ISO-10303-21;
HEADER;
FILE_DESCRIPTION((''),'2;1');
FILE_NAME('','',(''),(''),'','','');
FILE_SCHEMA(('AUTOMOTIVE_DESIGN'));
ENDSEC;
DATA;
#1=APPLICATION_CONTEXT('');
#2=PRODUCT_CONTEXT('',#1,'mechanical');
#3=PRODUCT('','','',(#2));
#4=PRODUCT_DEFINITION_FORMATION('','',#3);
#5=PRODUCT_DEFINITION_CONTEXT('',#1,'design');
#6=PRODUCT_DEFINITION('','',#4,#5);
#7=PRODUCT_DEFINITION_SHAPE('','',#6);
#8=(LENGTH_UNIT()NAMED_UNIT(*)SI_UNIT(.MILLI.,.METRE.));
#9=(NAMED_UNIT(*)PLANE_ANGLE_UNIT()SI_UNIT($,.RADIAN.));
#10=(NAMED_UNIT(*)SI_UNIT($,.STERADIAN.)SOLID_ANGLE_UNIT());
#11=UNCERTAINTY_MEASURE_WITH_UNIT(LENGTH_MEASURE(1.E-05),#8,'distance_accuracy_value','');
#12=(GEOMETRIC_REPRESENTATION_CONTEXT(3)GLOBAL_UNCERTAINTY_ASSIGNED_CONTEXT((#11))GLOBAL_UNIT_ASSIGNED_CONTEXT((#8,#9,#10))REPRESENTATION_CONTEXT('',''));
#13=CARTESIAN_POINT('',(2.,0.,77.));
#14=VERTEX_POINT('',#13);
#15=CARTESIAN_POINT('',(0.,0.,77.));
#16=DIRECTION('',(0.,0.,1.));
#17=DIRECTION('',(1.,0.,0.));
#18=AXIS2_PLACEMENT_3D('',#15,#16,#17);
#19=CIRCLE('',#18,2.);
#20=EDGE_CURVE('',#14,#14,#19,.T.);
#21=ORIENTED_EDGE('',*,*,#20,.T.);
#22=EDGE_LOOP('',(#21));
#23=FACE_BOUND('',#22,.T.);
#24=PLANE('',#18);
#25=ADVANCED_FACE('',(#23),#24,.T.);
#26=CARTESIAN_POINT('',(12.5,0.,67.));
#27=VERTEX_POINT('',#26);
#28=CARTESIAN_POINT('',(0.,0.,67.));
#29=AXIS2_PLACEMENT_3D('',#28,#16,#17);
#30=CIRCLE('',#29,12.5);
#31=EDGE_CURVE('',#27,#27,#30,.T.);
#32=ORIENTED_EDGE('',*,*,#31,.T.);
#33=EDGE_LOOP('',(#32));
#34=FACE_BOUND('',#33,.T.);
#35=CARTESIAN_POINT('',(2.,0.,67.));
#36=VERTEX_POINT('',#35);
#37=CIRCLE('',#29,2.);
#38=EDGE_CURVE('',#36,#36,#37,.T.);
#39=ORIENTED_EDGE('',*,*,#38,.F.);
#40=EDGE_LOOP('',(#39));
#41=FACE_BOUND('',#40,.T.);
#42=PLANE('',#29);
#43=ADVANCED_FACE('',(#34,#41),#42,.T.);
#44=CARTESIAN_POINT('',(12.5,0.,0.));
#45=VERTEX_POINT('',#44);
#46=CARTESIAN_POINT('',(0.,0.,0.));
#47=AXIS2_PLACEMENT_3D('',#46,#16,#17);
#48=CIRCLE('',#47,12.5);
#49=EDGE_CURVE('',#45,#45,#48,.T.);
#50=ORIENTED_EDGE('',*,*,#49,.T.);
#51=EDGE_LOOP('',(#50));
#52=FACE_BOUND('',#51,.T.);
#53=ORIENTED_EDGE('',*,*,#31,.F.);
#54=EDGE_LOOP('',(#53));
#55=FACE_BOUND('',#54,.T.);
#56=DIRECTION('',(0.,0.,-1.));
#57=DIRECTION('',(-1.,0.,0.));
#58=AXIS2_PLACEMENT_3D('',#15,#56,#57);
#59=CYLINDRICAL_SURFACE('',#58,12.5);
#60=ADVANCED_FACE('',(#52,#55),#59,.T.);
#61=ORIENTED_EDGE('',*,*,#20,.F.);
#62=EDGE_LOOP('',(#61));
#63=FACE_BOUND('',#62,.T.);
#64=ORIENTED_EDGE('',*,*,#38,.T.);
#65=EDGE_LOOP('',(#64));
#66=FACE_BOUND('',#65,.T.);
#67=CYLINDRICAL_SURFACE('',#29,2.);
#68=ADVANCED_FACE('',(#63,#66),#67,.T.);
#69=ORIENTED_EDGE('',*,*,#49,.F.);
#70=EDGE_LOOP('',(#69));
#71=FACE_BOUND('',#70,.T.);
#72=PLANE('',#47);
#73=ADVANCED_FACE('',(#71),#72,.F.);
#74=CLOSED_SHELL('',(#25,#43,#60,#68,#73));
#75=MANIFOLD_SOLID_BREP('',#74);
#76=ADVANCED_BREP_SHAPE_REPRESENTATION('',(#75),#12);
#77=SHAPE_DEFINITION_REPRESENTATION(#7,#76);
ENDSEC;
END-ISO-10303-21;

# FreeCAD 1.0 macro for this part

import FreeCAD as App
import Part
import Sketcher
from FreeCAD import Vector
Q = App.Units.Quantity

doc = App.newDocument("Part")
params = doc.addObject("Spreadsheet::Sheet", "Params")
for row, (alias, value) in enumerate([
    ("sketch1_diameter", "25 mm"),
    ("pad1_length", "77 mm"),
    ("sketch2_diameter", "4 mm"),
    ("pocket1_length", "10 mm"),
], start=1):
    params.set(f"A{row}", alias)
    params.set(f"B{row}", "=" + value)
    params.setAlias(f"B{row}", alias)

body = doc.addObject("PartDesign::Body", "Body")

# Sketch on XY plane
sketch1 = body.newObject("Sketcher::SketchObject", "Sketch")
sketch1.AttachmentSupport = (doc.getObject("XY_Plane"), [""])
sketch1.MapMode = "FlatFace"
sketch1.addGeometry(Part.Circle(Vector(0, 0, 0), Vector(0, 0, 1), 12.5), False)
sketch1.addConstraint(Sketcher.Constraint("Coincident", 0, 3, -1, 1))
sketch1.addConstraint(Sketcher.Constraint("Diameter", 0, Q("25 mm")))
sketch1.setExpression("Constraints[1]", "Params.sketch1_diameter")
pad1 = body.newObject("PartDesign::Pad", "Pad")
pad1.Profile = sketch1
pad1.setExpression("Length", "Params.pad1_length")

# Sketch on XY plane
sketch2 = body.newObject("Sketcher::SketchObject", "Sketch001")
sketch2.AttachmentSupport = (doc.getObject("XY_Plane"), [""])
sketch2.MapMode = "FlatFace"
sketch2.AttachmentOffset = App.Placement(Vector(0, 0, 77), App.Rotation())
sketch2.addGeometry(Part.Circle(Vector(0, 0, 0), Vector(0, 0, 1), 15.692851), False)
sketch2.addGeometry(Part.Circle(Vector(0, 0, 0), Vector(0, 0, 1), 2), False)
sketch2.addConstraint(Sketcher.Constraint("Coincident", 0, 3, -1, 1))
sketch2.addConstraint(Sketcher.Constraint("Coincident", 1, 3, -1, 1))
sketch2.addConstraint(Sketcher.Constraint("Diameter", 1, Q("4 mm")))
sketch2.addConstraint(Sketcher.Constraint("Diameter", 0, Q("31.385703 mm")))
sketch2.setExpression("Constraints[2]", "Params.sketch2_diameter")
pocket1 = body.newObject("PartDesign::Pocket", "Pocket")
pocket1.Profile = sketch2
pocket1.setExpression("Length", "Params.pocket1_length")

doc.recompute()
